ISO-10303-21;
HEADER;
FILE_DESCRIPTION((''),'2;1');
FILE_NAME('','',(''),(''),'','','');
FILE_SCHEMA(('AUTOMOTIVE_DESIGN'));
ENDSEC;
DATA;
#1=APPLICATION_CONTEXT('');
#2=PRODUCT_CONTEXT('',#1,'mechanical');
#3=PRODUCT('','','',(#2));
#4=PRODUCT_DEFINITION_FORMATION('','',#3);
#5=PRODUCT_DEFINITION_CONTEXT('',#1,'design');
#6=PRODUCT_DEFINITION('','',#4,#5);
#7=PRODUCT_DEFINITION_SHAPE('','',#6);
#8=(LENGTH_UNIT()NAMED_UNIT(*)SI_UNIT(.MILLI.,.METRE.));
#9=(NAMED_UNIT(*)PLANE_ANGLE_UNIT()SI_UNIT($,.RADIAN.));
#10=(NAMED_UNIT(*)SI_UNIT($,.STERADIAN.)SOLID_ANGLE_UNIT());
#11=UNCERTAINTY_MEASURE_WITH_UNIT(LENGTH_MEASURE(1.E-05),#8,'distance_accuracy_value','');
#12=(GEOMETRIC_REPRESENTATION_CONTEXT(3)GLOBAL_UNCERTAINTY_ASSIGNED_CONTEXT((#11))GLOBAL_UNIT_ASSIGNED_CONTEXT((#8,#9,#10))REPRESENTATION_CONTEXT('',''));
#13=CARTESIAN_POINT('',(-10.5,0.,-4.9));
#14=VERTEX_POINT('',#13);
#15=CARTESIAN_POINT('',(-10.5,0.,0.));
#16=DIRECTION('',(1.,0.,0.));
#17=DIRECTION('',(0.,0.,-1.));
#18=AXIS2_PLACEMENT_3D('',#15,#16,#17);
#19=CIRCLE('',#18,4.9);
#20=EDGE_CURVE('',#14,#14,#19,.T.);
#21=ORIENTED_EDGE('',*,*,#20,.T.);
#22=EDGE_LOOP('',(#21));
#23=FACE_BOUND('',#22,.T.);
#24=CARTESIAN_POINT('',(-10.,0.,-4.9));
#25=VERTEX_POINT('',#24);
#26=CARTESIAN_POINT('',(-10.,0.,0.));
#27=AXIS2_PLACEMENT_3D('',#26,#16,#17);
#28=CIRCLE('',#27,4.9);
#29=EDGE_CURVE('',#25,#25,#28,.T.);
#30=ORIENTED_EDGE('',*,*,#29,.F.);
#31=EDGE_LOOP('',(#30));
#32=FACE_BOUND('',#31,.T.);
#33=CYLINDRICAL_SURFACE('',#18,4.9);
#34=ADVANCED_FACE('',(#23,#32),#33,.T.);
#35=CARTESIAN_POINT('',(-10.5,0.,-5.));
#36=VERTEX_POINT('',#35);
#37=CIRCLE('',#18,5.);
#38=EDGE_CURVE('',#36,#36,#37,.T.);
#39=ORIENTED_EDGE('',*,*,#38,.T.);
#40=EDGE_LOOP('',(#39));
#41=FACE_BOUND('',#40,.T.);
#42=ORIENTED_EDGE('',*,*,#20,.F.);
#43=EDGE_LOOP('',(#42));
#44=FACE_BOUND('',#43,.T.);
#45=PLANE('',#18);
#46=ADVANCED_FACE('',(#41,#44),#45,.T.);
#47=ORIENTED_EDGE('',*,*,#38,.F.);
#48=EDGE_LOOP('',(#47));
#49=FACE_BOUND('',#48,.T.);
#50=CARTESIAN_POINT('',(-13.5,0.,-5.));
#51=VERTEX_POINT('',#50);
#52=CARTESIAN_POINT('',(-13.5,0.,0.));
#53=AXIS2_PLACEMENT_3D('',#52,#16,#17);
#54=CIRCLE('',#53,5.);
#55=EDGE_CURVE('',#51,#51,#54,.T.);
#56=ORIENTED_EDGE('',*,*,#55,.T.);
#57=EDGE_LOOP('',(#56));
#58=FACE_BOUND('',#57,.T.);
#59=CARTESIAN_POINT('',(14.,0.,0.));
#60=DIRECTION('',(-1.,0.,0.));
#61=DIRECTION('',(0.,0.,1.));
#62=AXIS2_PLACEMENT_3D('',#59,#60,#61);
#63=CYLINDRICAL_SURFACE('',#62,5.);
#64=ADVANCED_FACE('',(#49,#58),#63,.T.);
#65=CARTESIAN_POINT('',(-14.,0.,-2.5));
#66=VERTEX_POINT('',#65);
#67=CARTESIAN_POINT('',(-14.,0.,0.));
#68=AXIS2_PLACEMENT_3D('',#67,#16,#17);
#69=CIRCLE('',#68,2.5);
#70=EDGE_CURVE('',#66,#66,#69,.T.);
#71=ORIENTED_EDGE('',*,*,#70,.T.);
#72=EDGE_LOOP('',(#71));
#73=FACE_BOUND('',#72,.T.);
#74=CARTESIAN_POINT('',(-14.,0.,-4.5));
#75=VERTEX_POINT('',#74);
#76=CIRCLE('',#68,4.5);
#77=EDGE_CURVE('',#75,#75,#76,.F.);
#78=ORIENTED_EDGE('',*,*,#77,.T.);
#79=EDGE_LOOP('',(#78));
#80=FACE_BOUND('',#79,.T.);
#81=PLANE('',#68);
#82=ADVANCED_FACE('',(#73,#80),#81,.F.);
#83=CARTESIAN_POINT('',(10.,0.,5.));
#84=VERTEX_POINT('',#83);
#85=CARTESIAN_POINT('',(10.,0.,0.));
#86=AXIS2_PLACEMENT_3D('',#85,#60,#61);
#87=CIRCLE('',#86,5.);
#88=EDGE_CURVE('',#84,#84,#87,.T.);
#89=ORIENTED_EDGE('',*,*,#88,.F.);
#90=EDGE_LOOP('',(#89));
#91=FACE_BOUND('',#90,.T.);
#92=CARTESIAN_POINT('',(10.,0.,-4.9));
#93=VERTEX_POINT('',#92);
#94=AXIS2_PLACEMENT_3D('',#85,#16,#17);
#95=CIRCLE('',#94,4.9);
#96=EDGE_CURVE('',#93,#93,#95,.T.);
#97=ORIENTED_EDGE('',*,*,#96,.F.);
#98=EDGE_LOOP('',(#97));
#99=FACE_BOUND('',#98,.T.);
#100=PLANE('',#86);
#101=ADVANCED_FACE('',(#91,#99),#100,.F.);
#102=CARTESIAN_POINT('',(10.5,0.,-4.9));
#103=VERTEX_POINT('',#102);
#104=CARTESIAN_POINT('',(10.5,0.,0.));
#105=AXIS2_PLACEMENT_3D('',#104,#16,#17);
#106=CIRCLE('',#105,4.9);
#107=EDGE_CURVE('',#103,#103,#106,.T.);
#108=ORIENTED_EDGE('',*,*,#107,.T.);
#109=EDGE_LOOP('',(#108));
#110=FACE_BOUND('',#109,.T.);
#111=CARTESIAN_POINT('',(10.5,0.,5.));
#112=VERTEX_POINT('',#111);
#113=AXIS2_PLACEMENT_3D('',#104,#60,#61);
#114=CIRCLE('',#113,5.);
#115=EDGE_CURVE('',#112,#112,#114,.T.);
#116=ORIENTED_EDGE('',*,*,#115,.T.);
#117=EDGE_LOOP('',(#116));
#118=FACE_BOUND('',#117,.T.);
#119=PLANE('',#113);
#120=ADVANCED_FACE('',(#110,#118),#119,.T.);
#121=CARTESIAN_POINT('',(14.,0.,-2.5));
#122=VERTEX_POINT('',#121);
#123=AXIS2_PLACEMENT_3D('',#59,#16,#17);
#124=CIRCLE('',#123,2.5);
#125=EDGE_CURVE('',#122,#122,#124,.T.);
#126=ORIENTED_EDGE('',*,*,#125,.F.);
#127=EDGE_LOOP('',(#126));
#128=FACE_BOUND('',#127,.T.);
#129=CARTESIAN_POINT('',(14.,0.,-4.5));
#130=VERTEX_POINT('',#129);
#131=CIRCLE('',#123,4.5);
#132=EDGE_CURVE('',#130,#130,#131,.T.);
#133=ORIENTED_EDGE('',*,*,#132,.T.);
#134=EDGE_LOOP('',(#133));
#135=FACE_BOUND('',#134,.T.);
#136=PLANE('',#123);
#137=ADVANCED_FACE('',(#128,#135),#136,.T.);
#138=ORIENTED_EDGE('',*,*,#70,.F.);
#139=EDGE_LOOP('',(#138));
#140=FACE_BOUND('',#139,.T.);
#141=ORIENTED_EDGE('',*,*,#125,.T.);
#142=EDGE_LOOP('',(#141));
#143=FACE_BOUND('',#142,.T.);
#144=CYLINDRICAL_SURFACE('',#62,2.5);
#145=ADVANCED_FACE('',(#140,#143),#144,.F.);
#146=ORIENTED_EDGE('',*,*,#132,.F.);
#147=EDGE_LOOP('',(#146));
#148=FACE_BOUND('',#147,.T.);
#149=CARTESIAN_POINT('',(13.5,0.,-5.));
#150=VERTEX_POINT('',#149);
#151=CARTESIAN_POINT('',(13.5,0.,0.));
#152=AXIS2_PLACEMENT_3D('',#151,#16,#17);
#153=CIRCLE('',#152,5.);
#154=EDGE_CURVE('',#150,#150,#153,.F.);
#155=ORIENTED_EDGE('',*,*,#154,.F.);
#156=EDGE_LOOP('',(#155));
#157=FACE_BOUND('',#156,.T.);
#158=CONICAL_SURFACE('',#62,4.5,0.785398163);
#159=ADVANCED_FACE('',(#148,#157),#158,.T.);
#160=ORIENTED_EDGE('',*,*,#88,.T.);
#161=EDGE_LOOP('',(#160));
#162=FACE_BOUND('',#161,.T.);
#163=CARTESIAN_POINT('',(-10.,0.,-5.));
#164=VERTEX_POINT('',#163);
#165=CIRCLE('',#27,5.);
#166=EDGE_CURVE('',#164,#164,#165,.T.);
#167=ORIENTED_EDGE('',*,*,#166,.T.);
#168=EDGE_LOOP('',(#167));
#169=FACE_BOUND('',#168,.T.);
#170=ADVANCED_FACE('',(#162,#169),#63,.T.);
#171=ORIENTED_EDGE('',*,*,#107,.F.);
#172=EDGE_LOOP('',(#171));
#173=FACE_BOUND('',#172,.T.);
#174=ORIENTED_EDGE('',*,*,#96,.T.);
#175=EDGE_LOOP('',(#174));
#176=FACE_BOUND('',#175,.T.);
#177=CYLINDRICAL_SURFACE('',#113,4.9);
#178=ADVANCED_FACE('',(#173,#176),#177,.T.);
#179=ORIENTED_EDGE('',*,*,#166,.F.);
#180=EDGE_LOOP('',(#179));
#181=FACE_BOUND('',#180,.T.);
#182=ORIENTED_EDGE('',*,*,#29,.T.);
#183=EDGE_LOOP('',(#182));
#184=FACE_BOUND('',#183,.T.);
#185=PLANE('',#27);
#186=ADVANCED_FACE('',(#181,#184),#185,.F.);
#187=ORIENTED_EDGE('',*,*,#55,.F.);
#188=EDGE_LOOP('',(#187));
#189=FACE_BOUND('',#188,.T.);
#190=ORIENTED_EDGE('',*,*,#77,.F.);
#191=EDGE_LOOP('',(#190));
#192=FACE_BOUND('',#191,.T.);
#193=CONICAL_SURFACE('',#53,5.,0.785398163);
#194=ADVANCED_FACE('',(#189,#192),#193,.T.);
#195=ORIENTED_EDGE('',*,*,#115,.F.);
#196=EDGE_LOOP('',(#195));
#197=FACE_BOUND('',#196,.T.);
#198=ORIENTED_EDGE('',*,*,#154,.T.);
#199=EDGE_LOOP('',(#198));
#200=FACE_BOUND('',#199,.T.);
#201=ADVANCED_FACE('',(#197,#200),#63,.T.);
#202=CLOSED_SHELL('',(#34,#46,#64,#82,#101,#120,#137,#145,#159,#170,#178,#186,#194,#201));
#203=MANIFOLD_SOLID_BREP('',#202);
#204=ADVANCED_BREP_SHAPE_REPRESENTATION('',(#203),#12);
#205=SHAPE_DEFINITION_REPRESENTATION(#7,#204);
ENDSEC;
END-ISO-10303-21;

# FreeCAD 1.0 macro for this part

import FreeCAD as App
import Part
import Sketcher
from FreeCAD import Vector


def edges_at(feature, points):
    """Names of the edges that pass closest to the given points."""
    edges = feature.Shape.Edges
    near = lambda p: min(range(len(edges)), key=lambda i: edges[i].distToShape(Part.Vertex(*p))[0])
    return sorted({f"Edge{near(p) + 1}" for p in points})

doc = App.newDocument("Part")
body = doc.addObject("PartDesign::Body", "Body")

sketch1 = body.newObject("Sketcher::SketchObject", "Sketch")
sketch1.AttachmentSupport = (doc.getObject("YZ_Plane"), [""])
sketch1.MapMode = "FlatFace"
sketch1.addGeometry([
    Part.Circle(Vector(0, 0, 0), Vector(0, 0, 1), 5),
    Part.Circle(Vector(0, 0, 0), Vector(0, 0, 1), 2.5),
], False)
sketch1.addConstraint([
    Sketcher.Constraint("Coincident", 0, 3, -1, 1),
    Sketcher.Constraint("Coincident", 1, 3, -1, 1),
    Sketcher.Constraint("Diameter", 0, 10.0),
    Sketcher.Constraint("Diameter", 1, 5.0),
])
pad1 = body.newObject("PartDesign::Pad", "Pad")
pad1.Profile = sketch1
pad1.Length = 28
pad1.Midplane = True
doc.recompute()

chamfer = body.newObject("PartDesign::Chamfer", "Chamfer")
chamfer.Base = (pad1, edges_at(pad1, [(-14, 0, 5), (14, 0, 5)]))
chamfer.Size = 0.5

sketch2 = body.newObject("Sketcher::SketchObject", "Sketch001")
sketch2.AttachmentSupport = (doc.getObject("YZ_Plane"), [""])
sketch2.MapMode = "FlatFace"
sketch2.AttachmentOffset = App.Placement(Vector(0, 0, -10), App.Rotation())
sketch2.addGeometry([
    Part.LineSegment(Vector(9.137, 9.137, 0), Vector(-9.137, 9.137, 0)),
    Part.LineSegment(Vector(-9.137, 9.137, 0), Vector(-9.137, -9.137, 0)),
    Part.LineSegment(Vector(-9.137, -9.137, 0), Vector(9.137, -9.137, 0)),
    Part.LineSegment(Vector(9.137, -9.137, 0), Vector(9.137, 9.137, 0)),
    Part.Circle(Vector(0, 0, 0), Vector(0, 0, 1), 4.9),
], False)
sketch2.addConstraint([
    Sketcher.Constraint("Coincident", 0, 2, 1, 1),
    Sketcher.Constraint("Coincident", 1, 2, 2, 1),
    Sketcher.Constraint("Coincident", 2, 2, 3, 1),
    Sketcher.Constraint("Coincident", 3, 2, 0, 1),
    Sketcher.Constraint("Horizontal", 0),
    Sketcher.Constraint("Vertical", 1),
    Sketcher.Constraint("Horizontal", 2),
    Sketcher.Constraint("Vertical", 3),
    Sketcher.Constraint("Coincident", 4, 3, -1, 1),
    Sketcher.Constraint("Symmetric", 0, 2, 2, 2, -1, 1),
    Sketcher.Constraint("Equal", 2, 1),
    Sketcher.Constraint("Diameter", 4, 9.8),
    Sketcher.Constraint("DistanceX", 0, 2, 0, 1, 18.274),
])
pocket1 = body.newObject("PartDesign::Pocket", "Pocket")
pocket1.Profile = sketch2
pocket1.Length = 0.5
doc.recompute()

mirrored = body.newObject("PartDesign::Mirrored", "Mirrored")
mirrored.Originals = [pocket1]
mirrored.MirrorPlane = (doc.getObject("YZ_Plane"), [""])
body.Tip = mirrored

doc.recompute()
